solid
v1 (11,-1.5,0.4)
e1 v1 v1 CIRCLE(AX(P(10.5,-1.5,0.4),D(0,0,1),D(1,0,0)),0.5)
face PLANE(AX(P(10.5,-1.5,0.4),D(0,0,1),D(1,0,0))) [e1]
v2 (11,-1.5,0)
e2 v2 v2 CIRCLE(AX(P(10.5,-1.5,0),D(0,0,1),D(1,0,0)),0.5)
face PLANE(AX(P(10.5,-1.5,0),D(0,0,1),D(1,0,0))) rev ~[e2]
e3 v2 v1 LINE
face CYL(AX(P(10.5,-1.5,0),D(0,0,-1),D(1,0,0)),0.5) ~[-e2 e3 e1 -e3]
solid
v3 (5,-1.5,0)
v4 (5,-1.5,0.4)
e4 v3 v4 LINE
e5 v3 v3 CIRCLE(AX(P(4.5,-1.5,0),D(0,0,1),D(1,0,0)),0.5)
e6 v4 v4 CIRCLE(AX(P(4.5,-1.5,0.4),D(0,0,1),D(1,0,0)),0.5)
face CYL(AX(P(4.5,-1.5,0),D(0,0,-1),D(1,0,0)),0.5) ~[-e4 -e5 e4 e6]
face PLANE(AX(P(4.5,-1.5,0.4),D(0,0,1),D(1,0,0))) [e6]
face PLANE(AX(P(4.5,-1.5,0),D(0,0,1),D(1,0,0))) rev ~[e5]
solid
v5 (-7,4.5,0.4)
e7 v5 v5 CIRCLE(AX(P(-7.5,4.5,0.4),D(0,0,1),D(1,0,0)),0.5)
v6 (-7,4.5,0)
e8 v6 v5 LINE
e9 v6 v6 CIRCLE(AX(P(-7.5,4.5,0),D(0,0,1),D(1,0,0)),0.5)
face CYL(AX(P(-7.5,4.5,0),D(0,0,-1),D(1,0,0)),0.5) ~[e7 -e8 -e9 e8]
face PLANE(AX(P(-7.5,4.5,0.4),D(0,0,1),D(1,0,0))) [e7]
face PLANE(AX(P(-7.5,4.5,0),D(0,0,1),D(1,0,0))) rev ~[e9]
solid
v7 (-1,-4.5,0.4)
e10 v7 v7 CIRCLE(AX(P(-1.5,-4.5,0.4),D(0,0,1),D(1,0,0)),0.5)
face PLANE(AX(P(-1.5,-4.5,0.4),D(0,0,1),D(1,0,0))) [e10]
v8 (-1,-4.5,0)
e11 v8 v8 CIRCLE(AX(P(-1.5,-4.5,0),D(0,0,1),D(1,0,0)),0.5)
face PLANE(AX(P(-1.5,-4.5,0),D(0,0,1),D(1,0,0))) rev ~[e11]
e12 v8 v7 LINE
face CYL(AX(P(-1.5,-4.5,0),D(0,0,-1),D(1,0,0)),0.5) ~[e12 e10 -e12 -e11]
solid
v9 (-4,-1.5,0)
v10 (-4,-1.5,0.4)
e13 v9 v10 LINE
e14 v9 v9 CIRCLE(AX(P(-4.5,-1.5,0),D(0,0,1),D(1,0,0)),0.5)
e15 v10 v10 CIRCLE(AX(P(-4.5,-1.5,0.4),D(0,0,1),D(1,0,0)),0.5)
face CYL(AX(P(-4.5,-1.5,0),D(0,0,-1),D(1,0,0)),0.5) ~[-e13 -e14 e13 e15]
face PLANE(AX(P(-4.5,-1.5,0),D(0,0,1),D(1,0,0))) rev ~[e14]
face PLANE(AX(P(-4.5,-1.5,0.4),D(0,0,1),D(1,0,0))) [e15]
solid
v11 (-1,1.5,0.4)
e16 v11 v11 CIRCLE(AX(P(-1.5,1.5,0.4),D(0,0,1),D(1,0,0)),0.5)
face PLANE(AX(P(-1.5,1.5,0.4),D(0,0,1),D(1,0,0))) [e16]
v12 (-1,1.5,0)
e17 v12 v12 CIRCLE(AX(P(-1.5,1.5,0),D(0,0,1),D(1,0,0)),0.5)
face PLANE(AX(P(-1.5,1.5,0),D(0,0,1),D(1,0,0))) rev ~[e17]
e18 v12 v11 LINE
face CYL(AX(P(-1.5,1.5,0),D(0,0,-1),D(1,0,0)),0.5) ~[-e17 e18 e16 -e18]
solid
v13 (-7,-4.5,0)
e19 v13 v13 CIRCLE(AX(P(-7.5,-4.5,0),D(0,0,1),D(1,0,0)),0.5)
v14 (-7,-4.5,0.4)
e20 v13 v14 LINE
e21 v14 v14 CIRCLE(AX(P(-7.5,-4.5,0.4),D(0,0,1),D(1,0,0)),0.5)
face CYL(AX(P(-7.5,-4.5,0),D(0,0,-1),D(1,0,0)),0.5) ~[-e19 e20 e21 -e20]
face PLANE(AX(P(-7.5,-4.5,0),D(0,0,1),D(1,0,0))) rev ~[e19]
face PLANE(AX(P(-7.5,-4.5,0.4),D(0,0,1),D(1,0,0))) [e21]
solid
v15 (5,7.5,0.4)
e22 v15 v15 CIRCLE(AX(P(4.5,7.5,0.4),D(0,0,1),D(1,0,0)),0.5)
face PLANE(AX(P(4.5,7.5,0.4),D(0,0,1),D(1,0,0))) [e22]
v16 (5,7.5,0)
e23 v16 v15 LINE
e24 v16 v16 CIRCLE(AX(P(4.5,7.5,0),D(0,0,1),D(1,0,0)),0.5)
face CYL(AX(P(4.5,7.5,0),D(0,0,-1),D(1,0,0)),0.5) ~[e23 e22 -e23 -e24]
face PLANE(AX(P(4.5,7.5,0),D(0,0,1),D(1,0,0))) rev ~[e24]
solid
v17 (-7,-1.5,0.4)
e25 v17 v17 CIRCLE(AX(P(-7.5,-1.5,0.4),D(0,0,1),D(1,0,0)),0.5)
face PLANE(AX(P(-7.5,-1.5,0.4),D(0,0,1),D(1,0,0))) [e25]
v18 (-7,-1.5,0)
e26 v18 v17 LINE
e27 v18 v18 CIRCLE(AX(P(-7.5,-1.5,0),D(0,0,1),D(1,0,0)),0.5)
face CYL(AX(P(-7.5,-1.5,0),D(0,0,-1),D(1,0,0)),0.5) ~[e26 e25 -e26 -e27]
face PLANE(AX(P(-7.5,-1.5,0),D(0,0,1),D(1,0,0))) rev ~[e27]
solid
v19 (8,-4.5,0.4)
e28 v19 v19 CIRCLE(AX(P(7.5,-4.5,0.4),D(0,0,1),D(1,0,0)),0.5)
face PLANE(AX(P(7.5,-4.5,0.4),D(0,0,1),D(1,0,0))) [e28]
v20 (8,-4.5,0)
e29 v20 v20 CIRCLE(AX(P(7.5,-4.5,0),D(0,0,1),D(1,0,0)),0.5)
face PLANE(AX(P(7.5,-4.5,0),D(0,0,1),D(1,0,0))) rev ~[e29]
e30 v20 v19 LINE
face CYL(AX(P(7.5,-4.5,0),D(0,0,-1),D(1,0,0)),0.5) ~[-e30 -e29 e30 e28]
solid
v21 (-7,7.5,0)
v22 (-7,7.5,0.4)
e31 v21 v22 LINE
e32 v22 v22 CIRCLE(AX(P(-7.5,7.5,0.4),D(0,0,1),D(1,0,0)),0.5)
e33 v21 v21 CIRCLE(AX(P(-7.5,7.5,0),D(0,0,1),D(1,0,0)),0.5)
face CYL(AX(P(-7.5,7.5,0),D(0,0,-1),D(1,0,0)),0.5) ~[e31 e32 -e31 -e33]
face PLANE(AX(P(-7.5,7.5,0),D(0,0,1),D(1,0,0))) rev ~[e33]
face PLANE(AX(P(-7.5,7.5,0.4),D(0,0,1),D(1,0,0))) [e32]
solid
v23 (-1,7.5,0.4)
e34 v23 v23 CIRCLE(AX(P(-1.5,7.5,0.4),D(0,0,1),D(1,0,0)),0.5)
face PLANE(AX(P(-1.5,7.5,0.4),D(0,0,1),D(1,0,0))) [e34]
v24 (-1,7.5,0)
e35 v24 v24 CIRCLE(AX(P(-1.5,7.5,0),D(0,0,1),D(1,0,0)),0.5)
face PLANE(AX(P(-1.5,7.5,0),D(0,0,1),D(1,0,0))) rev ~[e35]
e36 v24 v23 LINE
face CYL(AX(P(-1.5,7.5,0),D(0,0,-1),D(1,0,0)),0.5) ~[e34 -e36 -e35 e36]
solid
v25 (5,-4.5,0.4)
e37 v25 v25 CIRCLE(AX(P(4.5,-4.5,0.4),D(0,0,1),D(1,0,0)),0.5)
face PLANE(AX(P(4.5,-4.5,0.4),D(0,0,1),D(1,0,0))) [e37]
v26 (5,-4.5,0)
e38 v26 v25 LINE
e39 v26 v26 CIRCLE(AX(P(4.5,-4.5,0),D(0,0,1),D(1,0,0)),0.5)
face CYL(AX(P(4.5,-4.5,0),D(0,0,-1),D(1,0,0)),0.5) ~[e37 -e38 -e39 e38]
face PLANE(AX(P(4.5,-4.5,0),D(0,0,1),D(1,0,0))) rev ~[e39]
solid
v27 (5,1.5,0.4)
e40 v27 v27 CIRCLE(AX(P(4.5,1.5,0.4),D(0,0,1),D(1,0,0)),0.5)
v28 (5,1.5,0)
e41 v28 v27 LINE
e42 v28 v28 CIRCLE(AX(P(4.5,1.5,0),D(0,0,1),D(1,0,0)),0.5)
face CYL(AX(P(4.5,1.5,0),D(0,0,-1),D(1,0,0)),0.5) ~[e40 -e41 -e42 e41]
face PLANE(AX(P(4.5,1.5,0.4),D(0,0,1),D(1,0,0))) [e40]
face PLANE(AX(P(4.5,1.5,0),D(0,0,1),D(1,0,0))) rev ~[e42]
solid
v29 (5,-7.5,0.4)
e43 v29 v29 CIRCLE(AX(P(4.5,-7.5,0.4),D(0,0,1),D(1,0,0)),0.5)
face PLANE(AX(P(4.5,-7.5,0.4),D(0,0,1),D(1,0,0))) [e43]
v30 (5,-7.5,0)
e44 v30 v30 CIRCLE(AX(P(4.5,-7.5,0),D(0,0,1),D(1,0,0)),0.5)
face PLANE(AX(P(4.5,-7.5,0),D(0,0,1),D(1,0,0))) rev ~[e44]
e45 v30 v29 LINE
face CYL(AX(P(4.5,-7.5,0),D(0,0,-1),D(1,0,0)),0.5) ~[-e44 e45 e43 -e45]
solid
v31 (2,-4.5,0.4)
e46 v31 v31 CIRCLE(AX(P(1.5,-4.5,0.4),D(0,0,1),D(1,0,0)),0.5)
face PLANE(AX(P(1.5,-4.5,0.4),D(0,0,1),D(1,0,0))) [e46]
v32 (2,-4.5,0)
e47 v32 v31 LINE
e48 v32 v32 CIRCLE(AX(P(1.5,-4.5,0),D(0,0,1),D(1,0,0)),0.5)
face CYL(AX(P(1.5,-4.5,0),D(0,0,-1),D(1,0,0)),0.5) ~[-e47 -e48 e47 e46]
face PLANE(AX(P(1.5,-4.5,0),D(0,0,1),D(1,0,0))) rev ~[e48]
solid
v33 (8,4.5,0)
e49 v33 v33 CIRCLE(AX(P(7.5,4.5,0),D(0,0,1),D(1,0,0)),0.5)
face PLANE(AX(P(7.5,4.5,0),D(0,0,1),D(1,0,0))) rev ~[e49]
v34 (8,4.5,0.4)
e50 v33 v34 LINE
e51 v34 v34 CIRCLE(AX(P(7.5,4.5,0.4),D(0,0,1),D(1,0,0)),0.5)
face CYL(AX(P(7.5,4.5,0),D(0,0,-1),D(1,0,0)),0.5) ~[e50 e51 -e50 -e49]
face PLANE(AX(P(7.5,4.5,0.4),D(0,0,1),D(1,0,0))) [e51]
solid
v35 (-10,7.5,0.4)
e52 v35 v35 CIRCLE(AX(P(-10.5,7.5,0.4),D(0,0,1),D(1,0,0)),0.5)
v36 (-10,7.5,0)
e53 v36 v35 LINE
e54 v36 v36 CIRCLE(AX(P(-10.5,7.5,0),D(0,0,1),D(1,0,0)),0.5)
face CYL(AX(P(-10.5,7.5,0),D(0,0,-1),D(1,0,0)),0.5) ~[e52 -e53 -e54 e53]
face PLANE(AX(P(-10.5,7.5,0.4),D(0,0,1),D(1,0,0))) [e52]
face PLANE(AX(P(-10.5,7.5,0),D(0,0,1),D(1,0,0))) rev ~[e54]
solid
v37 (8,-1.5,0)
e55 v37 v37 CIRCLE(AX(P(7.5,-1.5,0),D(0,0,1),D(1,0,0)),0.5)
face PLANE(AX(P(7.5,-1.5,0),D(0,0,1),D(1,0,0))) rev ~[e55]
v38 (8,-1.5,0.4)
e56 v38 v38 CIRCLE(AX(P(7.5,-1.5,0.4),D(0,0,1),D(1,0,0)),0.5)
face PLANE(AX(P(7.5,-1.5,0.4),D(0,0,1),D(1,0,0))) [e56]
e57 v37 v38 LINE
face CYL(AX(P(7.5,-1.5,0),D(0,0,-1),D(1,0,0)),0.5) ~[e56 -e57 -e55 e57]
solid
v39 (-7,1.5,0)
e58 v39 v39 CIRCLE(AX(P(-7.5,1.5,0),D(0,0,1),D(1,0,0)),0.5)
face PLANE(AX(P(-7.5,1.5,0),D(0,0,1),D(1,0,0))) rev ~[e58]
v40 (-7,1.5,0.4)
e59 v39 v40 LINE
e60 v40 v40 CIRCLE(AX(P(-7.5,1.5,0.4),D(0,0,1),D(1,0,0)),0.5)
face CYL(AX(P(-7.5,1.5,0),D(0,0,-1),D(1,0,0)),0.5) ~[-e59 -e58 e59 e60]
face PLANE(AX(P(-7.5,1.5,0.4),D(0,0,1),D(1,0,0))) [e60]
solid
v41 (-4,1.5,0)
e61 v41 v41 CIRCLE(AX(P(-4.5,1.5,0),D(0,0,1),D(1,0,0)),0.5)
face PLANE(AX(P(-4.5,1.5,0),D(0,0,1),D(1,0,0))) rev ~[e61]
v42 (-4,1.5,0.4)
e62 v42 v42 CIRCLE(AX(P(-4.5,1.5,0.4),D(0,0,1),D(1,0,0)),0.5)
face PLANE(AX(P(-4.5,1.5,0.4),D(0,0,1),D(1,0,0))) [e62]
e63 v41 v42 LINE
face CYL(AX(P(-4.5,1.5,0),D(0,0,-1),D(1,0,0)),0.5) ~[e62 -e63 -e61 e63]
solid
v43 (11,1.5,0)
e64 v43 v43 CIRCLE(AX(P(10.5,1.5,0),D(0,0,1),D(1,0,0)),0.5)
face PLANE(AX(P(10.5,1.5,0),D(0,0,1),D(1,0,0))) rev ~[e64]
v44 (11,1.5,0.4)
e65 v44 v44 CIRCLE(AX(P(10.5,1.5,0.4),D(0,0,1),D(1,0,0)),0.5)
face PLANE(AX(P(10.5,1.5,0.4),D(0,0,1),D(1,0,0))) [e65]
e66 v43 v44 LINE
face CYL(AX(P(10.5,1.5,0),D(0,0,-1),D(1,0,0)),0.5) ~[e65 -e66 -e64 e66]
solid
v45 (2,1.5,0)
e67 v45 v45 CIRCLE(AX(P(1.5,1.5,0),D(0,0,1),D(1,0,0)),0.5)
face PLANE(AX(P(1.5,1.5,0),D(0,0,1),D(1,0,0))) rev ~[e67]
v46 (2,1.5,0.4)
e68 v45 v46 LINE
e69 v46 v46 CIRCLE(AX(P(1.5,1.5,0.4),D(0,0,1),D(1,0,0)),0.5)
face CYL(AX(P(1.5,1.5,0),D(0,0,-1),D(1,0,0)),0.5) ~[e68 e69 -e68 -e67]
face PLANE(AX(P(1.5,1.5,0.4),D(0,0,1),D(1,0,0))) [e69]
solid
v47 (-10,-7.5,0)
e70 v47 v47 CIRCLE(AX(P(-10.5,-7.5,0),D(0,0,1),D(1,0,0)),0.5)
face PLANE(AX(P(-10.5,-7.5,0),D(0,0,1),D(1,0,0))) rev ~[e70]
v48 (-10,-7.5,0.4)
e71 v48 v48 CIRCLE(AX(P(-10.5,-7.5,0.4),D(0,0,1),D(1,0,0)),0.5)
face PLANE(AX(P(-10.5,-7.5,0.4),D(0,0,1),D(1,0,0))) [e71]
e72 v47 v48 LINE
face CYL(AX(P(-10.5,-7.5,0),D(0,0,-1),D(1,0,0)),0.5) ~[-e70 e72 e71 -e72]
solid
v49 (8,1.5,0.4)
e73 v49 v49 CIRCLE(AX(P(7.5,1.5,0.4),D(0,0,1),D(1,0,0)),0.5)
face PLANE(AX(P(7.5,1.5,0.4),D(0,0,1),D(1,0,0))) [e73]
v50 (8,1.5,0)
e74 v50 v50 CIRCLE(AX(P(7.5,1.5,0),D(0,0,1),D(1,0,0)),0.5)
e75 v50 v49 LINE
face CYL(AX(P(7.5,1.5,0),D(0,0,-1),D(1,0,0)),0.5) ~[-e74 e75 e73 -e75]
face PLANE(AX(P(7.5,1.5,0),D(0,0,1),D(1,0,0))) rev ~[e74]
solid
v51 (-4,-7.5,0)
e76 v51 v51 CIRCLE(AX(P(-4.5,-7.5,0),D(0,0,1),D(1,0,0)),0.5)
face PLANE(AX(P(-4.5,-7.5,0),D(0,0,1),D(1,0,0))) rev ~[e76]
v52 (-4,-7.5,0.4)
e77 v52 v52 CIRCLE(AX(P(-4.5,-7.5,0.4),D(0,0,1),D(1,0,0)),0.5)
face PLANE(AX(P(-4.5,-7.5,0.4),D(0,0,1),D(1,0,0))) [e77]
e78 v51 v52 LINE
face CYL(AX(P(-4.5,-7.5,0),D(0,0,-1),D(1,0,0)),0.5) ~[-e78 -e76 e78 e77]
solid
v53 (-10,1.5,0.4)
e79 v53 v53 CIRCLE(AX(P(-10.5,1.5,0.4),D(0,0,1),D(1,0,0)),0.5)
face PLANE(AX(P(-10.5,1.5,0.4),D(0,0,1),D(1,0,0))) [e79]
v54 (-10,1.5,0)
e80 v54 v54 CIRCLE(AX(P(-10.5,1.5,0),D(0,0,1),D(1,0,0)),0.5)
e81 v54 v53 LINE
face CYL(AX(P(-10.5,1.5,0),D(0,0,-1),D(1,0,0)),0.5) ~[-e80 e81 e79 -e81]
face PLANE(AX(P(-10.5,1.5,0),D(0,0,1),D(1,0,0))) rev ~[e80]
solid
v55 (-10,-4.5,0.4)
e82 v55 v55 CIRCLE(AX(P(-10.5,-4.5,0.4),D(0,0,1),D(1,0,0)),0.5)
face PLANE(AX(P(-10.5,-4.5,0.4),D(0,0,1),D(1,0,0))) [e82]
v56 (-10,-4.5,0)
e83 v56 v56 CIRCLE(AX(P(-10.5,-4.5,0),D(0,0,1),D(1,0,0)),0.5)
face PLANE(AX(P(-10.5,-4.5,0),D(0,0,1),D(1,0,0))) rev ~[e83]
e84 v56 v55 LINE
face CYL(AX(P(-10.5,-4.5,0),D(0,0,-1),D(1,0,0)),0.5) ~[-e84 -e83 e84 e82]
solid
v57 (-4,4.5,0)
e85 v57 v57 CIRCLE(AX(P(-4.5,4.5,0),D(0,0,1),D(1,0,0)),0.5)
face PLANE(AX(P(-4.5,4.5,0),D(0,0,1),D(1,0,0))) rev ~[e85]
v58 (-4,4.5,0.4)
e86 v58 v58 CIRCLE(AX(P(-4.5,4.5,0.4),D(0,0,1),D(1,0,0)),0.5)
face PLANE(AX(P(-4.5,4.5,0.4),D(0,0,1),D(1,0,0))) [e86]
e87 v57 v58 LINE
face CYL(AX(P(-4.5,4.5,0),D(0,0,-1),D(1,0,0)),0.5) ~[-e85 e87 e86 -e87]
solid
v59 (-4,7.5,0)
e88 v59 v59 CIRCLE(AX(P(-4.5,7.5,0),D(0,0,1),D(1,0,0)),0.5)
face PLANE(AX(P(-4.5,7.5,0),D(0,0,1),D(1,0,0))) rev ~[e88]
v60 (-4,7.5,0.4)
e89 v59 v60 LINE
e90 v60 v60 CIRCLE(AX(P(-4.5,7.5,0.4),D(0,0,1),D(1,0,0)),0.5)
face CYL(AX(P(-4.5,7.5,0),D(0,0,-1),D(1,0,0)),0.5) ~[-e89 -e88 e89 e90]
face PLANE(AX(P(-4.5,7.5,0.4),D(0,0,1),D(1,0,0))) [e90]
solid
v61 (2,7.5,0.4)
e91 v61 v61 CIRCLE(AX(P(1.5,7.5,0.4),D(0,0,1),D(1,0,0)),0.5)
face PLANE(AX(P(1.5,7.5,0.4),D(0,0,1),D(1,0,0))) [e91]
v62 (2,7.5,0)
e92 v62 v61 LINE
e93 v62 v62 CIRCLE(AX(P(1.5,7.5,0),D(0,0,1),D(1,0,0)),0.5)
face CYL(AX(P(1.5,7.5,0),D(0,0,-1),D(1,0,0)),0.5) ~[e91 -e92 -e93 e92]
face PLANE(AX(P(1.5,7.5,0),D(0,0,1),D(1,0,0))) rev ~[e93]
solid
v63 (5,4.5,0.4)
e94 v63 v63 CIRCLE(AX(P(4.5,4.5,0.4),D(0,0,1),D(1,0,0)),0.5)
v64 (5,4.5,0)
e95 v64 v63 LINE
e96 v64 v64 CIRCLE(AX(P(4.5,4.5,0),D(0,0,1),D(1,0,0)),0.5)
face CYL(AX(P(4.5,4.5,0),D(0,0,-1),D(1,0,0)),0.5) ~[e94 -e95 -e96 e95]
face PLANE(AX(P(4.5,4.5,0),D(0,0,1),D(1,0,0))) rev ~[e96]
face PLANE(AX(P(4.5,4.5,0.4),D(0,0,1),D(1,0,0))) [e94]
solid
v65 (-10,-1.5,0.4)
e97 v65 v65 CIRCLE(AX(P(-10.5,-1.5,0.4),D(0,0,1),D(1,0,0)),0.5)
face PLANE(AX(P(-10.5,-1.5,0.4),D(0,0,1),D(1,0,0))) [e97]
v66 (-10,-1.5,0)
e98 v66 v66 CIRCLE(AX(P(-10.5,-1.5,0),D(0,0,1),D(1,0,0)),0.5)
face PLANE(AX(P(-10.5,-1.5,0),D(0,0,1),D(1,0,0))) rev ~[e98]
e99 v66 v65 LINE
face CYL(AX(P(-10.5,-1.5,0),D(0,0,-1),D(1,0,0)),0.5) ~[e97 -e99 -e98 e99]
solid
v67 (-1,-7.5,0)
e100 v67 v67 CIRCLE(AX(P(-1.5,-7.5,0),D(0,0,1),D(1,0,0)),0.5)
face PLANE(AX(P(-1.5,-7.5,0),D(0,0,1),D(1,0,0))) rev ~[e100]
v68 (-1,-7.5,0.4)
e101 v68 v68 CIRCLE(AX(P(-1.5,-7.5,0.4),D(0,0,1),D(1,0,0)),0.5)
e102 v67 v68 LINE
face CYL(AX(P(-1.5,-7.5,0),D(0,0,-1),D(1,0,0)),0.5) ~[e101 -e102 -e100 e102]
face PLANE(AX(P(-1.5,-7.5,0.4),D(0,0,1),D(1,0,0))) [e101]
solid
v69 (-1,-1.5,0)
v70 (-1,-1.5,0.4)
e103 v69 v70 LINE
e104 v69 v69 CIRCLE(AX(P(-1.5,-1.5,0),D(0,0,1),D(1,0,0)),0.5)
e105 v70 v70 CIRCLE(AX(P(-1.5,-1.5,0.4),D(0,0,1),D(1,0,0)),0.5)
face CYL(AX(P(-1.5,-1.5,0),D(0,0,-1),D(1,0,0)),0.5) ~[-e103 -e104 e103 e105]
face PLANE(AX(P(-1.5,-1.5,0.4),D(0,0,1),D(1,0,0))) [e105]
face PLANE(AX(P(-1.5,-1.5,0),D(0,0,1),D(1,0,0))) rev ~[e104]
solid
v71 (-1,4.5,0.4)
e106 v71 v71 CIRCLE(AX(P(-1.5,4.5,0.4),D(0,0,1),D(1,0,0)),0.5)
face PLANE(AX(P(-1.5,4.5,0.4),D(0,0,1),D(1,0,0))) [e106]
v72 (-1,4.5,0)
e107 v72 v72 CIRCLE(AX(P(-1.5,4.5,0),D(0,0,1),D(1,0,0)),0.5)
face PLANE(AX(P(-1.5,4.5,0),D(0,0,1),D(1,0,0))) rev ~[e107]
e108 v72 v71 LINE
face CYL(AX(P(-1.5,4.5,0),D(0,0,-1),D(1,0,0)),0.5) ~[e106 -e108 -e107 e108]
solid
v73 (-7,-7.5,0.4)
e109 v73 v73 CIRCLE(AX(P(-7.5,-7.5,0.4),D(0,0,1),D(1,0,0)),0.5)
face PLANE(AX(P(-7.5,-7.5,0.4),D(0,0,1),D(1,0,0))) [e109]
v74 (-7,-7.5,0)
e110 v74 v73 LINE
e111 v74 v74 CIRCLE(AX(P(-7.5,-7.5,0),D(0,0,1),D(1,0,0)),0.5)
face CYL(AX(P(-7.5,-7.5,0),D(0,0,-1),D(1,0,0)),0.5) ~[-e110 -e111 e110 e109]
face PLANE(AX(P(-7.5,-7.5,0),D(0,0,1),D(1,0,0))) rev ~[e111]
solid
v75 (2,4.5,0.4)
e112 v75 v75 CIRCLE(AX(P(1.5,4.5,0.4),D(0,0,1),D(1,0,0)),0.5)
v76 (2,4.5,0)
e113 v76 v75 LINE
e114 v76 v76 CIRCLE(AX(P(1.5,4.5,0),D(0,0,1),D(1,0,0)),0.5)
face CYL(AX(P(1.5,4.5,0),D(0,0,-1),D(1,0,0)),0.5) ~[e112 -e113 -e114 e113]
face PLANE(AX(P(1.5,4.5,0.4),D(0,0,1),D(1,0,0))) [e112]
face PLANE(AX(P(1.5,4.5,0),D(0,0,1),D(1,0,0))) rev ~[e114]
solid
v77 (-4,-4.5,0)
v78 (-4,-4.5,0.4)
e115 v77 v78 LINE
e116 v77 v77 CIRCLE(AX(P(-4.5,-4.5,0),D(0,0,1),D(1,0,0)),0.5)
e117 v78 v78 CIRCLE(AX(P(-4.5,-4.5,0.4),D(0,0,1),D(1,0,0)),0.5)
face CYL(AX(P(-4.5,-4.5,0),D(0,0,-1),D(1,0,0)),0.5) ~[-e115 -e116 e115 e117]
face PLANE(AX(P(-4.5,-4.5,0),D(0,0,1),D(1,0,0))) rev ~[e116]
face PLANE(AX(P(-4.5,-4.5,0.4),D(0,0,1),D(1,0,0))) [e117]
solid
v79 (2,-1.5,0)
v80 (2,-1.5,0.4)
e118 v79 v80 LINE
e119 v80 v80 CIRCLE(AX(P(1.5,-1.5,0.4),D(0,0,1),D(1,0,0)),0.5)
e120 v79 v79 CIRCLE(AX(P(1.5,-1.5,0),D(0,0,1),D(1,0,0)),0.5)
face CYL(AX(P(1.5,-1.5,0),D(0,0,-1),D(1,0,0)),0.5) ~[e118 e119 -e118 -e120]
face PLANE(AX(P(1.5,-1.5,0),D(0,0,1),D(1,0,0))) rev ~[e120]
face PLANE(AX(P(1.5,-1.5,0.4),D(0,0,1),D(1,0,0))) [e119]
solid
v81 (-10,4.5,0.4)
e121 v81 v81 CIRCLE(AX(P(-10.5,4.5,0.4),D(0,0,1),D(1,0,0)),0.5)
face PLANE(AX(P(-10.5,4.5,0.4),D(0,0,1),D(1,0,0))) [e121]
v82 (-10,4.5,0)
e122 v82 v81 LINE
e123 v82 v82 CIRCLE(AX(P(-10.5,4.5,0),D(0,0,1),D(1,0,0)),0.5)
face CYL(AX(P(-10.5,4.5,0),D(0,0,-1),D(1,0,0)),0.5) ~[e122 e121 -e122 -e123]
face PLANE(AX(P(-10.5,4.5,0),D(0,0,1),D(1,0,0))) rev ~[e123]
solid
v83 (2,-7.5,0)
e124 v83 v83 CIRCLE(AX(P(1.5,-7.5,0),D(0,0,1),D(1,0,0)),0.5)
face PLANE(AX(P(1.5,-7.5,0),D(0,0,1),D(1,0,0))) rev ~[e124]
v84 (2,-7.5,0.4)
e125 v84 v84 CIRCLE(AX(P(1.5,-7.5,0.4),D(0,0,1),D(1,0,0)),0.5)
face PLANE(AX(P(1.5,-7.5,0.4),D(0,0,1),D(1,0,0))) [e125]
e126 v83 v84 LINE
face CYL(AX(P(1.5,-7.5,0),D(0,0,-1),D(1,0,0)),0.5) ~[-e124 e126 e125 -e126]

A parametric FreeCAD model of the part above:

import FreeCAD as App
import Part
import Sketcher

V = App.Vector

doc = App.newDocument("Part")
body = doc.addObject("PartDesign::Body", "Body")

# Sketch on XY plane
sketch1 = body.newObject("Sketcher::SketchObject", "Sketch")
sketch1.AttachmentSupport = (doc.getObject("XY_Plane"), [""])
sketch1.MapMode = "FlatFace"
sketch1.addGeometry(Part.Circle(V(-4.5, 1.5, 0), V(0, 0, 1), 0.5), False)
sketch1.addConstraint([
    Sketcher.Constraint("Diameter", 0, 1.0),
    Sketcher.Constraint("DistanceX", 0, 3, -1, 1, 4.5),
    Sketcher.Constraint("DistanceY", -1, 1, 0, 3, 1.5),
])
pad1 = body.newObject("PartDesign::Pad", "Pad")
pad1.Profile = sketch1
pad1.Length = 0.4
body2 = doc.addObject("PartDesign::Body", "Body001")

# Sketch on XY plane
sketch2 = body2.newObject("Sketcher::SketchObject", "Sketch001")
sketch2.AttachmentSupport = (doc.getObject("XY_Plane001"), [""])
sketch2.MapMode = "FlatFace"
sketch2.addGeometry(Part.Circle(V(-1.5, 1.5, 0), V(0, 0, 1), 0.5), False)
sketch2.addConstraint([
    Sketcher.Constraint("Diameter", 0, 1.0),
    Sketcher.Constraint("DistanceX", 0, 3, -1, 1, 1.5),
    Sketcher.Constraint("DistanceY", -1, 1, 0, 3, 1.5),
])
pad2 = body2.newObject("PartDesign::Pad", "Pad001")
pad2.Profile = sketch2
pad2.Length = 0.4
body3 = doc.addObject("PartDesign::Body", "Body002")

# Sketch on XY plane
sketch3 = body3.newObject("Sketcher::SketchObject", "Sketch002")
sketch3.AttachmentSupport = (doc.getObject("XY_Plane002"), [""])
sketch3.MapMode = "FlatFace"
sketch3.addGeometry(Part.Circle(V(1.5, 1.5, 0), V(0, 0, 1), 0.5), False)
sketch3.addConstraint([
    Sketcher.Constraint("Diameter", 0, 1.0),
    Sketcher.Constraint("DistanceX", -1, 1, 0, 3, 1.5),
    Sketcher.Constraint("DistanceY", -1, 1, 0, 3, 1.5),
])
pad3 = body3.newObject("PartDesign::Pad", "Pad002")
pad3.Profile = sketch3
pad3.Length = 0.4
body4 = doc.addObject("PartDesign::Body", "Body003")

# Sketch on XY plane
sketch4 = body4.newObject("Sketcher::SketchObject", "Sketch003")
sketch4.AttachmentSupport = (doc.getObject("XY_Plane003"), [""])
sketch4.MapMode = "FlatFace"
sketch4.addGeometry(Part.Circle(V(4.5, 1.5, 0), V(0, 0, 1), 0.5), False)
sketch4.addConstraint([
    Sketcher.Constraint("Diameter", 0, 1.0),
    Sketcher.Constraint("DistanceX", -1, 1, 0, 3, 4.5),
    Sketcher.Constraint("DistanceY", -1, 1, 0, 3, 1.5),
])
pad4 = body4.newObject("PartDesign::Pad", "Pad003")
pad4.Profile = sketch4
pad4.Length = 0.4
body5 = doc.addObject("PartDesign::Body", "Body004")

# Sketch on XY plane
sketch5 = body5.newObject("Sketcher::SketchObject", "Sketch004")
sketch5.AttachmentSupport = (doc.getObject("XY_Plane004"), [""])
sketch5.MapMode = "FlatFace"
sketch5.addGeometry(Part.Circle(V(7.5, 1.5, 0), V(0, 0, 1), 0.5), False)
sketch5.addConstraint([
    Sketcher.Constraint("Diameter", 0, 1.0),
    Sketcher.Constraint("DistanceX", -1, 1, 0, 3, 7.5),
    Sketcher.Constraint("DistanceY", -1, 1, 0, 3, 1.5),
])
pad5 = body5.newObject("PartDesign::Pad", "Pad004")
pad5.Profile = sketch5
pad5.Length = 0.4
body6 = doc.addObject("PartDesign::Body", "Body005")

# Sketch on XY plane
sketch6 = body6.newObject("Sketcher::SketchObject", "Sketch005")
sketch6.AttachmentSupport = (doc.getObject("XY_Plane005"), [""])
sketch6.MapMode = "FlatFace"
sketch6.addGeometry(Part.Circle(V(10.5, 1.5, 0), V(0, 0, 1), 0.5), False)
sketch6.addConstraint([
    Sketcher.Constraint("Diameter", 0, 1.0),
    Sketcher.Constraint("DistanceX", -1, 1, 0, 3, 10.5),
    Sketcher.Constraint("DistanceY", -1, 1, 0, 3, 1.5),
])
pad6 = body6.newObject("PartDesign::Pad", "Pad005")
pad6.Profile = sketch6
pad6.Length = 0.4
body7 = doc.addObject("PartDesign::Body", "Body006")

# Sketch on XY plane
sketch7 = body7.newObject("Sketcher::SketchObject", "Sketch006")
sketch7.AttachmentSupport = (doc.getObject("XY_Plane006"), [""])
sketch7.MapMode = "FlatFace"
sketch7.addGeometry(Part.Circle(V(10.5, -1.5, 0), V(0, 0, 1), 0.5), False)
sketch7.addConstraint([
    Sketcher.Constraint("Diameter", 0, 1.0),
    Sketcher.Constraint("DistanceX", -1, 1, 0, 3, 10.5),
    Sketcher.Constraint("DistanceY", 0, 3, -1, 1, 1.5),
])
pad7 = body7.newObject("PartDesign::Pad", "Pad006")
pad7.Profile = sketch7
pad7.Length = 0.4
body8 = doc.addObject("PartDesign::Body", "Body007")

# Sketch on XY plane
sketch8 = body8.newObject("Sketcher::SketchObject", "Sketch007")
sketch8.AttachmentSupport = (doc.getObject("XY_Plane007"), [""])
sketch8.MapMode = "FlatFace"
sketch8.addGeometry(Part.Circle(V(7.5, -1.5, 0), V(0, 0, 1), 0.5), False)
sketch8.addConstraint([
    Sketcher.Constraint("Diameter", 0, 1.0),
    Sketcher.Constraint("DistanceX", -1, 1, 0, 3, 7.5),
    Sketcher.Constraint("DistanceY", 0, 3, -1, 1, 1.5),
])
pad8 = body8.newObject("PartDesign::Pad", "Pad007")
pad8.Profile = sketch8
pad8.Length = 0.4
body9 = doc.addObject("PartDesign::Body", "Body008")

# Sketch on XY plane
sketch9 = body9.newObject("Sketcher::SketchObject", "Sketch008")
sketch9.AttachmentSupport = (doc.getObject("XY_Plane008"), [""])
sketch9.MapMode = "FlatFace"
sketch9.addGeometry(Part.Circle(V(-10.5, 7.5, 0), V(0, 0, 1), 0.5), False)
sketch9.addConstraint([
    Sketcher.Constraint("Diameter", 0, 1.0),
    Sketcher.Constraint("DistanceX", 0, 3, -1, 1, 10.5),
    Sketcher.Constraint("DistanceY", -1, 1, 0, 3, 7.5),
])
pad9 = body9.newObject("PartDesign::Pad", "Pad008")
pad9.Profile = sketch9
pad9.Length = 0.4
body10 = doc.addObject("PartDesign::Body", "Body009")

# Sketch on XY plane
sketch10 = body10.newObject("Sketcher::SketchObject", "Sketch009")
sketch10.AttachmentSupport = (doc.getObject("XY_Plane009"), [""])
sketch10.MapMode = "FlatFace"
sketch10.addGeometry(Part.Circle(V(-1.5, 7.5, 0), V(0, 0, 1), 0.5), False)
sketch10.addConstraint([
    Sketcher.Constraint("Diameter", 0, 1.0),
    Sketcher.Constraint("DistanceX", 0, 3, -1, 1, 1.5),
    Sketcher.Constraint("DistanceY", -1, 1, 0, 3, 7.5),
])
pad10 = body10.newObject("PartDesign::Pad", "Pad009")
pad10.Profile = sketch10
pad10.Length = 0.4
body11 = doc.addObject("PartDesign::Body", "Body010")

# Sketch on XY plane
sketch11 = body11.newObject("Sketcher::SketchObject", "Sketch010")
sketch11.AttachmentSupport = (doc.getObject("XY_Plane010"), [""])
sketch11.MapMode = "FlatFace"
sketch11.addGeometry(Part.Circle(V(1.5, 7.5, 0), V(0, 0, 1), 0.5), False)
sketch11.addConstraint([
    Sketcher.Constraint("Diameter", 0, 1.0),
    Sketcher.Constraint("DistanceX", -1, 1, 0, 3, 1.5),
    Sketcher.Constraint("DistanceY", -1, 1, 0, 3, 7.5),
])
pad11 = body11.newObject("PartDesign::Pad", "Pad010")
pad11.Profile = sketch11
pad11.Length = 0.4
body12 = doc.addObject("PartDesign::Body", "Body011")

# Sketch on XY plane
sketch12 = body12.newObject("Sketcher::SketchObject", "Sketch011")
sketch12.AttachmentSupport = (doc.getObject("XY_Plane011"), [""])
sketch12.MapMode = "FlatFace"
sketch12.addGeometry(Part.Circle(V(4.5, 7.5, 0), V(0, 0, 1), 0.5), False)
sketch12.addConstraint([
    Sketcher.Constraint("Diameter", 0, 1.0),
    Sketcher.Constraint("DistanceX", -1, 1, 0, 3, 4.5),
    Sketcher.Constraint("DistanceY", -1, 1, 0, 3, 7.5),
])
pad12 = body12.newObject("PartDesign::Pad", "Pad011")
pad12.Profile = sketch12
pad12.Length = 0.4
body13 = doc.addObject("PartDesign::Body", "Body012")

# Sketch on XY plane
sketch13 = body13.newObject("Sketcher::SketchObject", "Sketch012")
sketch13.AttachmentSupport = (doc.getObject("XY_Plane012"), [""])
sketch13.MapMode = "FlatFace"
sketch13.addGeometry(Part.Circle(V(-10.5, 1.5, 0), V(0, 0, 1), 0.5), False)
sketch13.addConstraint([
    Sketcher.Constraint("Diameter", 0, 1.0),
    Sketcher.Constraint("DistanceX", 0, 3, -1, 1, 10.5),
    Sketcher.Constraint("DistanceY", -1, 1, 0, 3, 1.5),
])
pad13 = body13.newObject("PartDesign::Pad", "Pad012")
pad13.Profile = sketch13
pad13.Length = 0.4
body14 = doc.addObject("PartDesign::Body", "Body013")

# Sketch on XY plane
sketch14 = body14.newObject("Sketcher::SketchObject", "Sketch013")
sketch14.AttachmentSupport = (doc.getObject("XY_Plane013"), [""])
sketch14.MapMode = "FlatFace"
sketch14.addGeometry(Part.Circle(V(-10.5, 4.5, 0), V(0, 0, 1), 0.5), False)
sketch14.addConstraint([
    Sketcher.Constraint("Diameter", 0, 1.0),
    Sketcher.Constraint("DistanceX", 0, 3, -1, 1, 10.5),
    Sketcher.Constraint("DistanceY", -1, 1, 0, 3, 4.5),
])
pad14 = body14.newObject("PartDesign::Pad", "Pad013")
pad14.Profile = sketch14
pad14.Length = 0.4
body15 = doc.addObject("PartDesign::Body", "Body014")

# Sketch on XY plane
sketch15 = body15.newObject("Sketcher::SketchObject", "Sketch014")
sketch15.AttachmentSupport = (doc.getObject("XY_Plane014"), [""])
sketch15.MapMode = "FlatFace"
sketch15.addGeometry(Part.Circle(V(-10.5, -1.5, 0), V(0, 0, 1), 0.5), False)
sketch15.addConstraint([
    Sketcher.Constraint("Diameter", 0, 1.0),
    Sketcher.Constraint("DistanceX", 0, 3, -1, 1, 10.5),
    Sketcher.Constraint("DistanceY", 0, 3, -1, 1, 1.5),
])
pad15 = body15.newObject("PartDesign::Pad", "Pad014")
pad15.Profile = sketch15
pad15.Length = 0.4
body16 = doc.addObject("PartDesign::Body", "Body015")

# Sketch on XY plane
sketch16 = body16.newObject("Sketcher::SketchObject", "Sketch015")
sketch16.AttachmentSupport = (doc.getObject("XY_Plane015"), [""])
sketch16.MapMode = "FlatFace"
sketch16.addGeometry(Part.Circle(V(-10.5, -4.5, 0), V(0, 0, 1), 0.5), False)
sketch16.addConstraint([
    Sketcher.Constraint("Diameter", 0, 1.0),
    Sketcher.Constraint("DistanceX", 0, 3, -1, 1, 10.5),
    Sketcher.Constraint("DistanceY", 0, 3, -1, 1, 4.5),
])
pad16 = body16.newObject("PartDesign::Pad", "Pad015")
pad16.Profile = sketch16
pad16.Length = 0.4
body17 = doc.addObject("PartDesign::Body", "Body016")

# Sketch on XY plane
sketch17 = body17.newObject("Sketcher::SketchObject", "Sketch016")
sketch17.AttachmentSupport = (doc.getObject("XY_Plane016"), [""])
sketch17.MapMode = "FlatFace"
sketch17.addGeometry(Part.Circle(V(-10.5, -7.5, 0), V(0, 0, 1), 0.5), False)
sketch17.addConstraint([
    Sketcher.Constraint("Diameter", 0, 1.0),
    Sketcher.Constraint("DistanceX", 0, 3, -1, 1, 10.5),
    Sketcher.Constraint("DistanceY", 0, 3, -1, 1, 7.5),
])
pad17 = body17.newObject("PartDesign::Pad", "Pad016")
pad17.Profile = sketch17
pad17.Length = 0.4
body18 = doc.addObject("PartDesign::Body", "Body017")

# Sketch on XY plane
sketch18 = body18.newObject("Sketcher::SketchObject", "Sketch017")
sketch18.AttachmentSupport = (doc.getObject("XY_Plane017"), [""])
sketch18.MapMode = "FlatFace"
sketch18.addGeometry(Part.Circle(V(-7.5, -7.5, 0), V(0, 0, 1), 0.5), False)
sketch18.addConstraint([
    Sketcher.Constraint("Diameter", 0, 1.0),
    Sketcher.Constraint("DistanceX", 0, 3, -1, 1, 7.5),
    Sketcher.Constraint("DistanceY", 0, 3, -1, 1, 7.5),
])
pad18 = body18.newObject("PartDesign::Pad", "Pad017")
pad18.Profile = sketch18
pad18.Length = 0.4
body19 = doc.addObject("PartDesign::Body", "Body018")

# Sketch on XY plane
sketch19 = body19.newObject("Sketcher::SketchObject", "Sketch018")
sketch19.AttachmentSupport = (doc.getObject("XY_Plane018"), [""])
sketch19.MapMode = "FlatFace"
sketch19.addGeometry(Part.Circle(V(-7.5, -4.5, 0), V(0, 0, 1), 0.5), False)
sketch19.addConstraint([
    Sketcher.Constraint("Diameter", 0, 1.0),
    Sketcher.Constraint("DistanceX", 0, 3, -1, 1, 7.5),
    Sketcher.Constraint("DistanceY", 0, 3, -1, 1, 4.5),
])
pad19 = body19.newObject("PartDesign::Pad", "Pad018")
pad19.Profile = sketch19
pad19.Length = 0.4
body20 = doc.addObject("PartDesign::Body", "Body019")

# Sketch on XY plane
sketch20 = body20.newObject("Sketcher::SketchObject", "Sketch019")
sketch20.AttachmentSupport = (doc.getObject("XY_Plane019"), [""])
sketch20.MapMode = "FlatFace"
sketch20.addGeometry(Part.Circle(V(-7.5, -1.5, 0), V(0, 0, 1), 0.5), False)
sketch20.addConstraint([
    Sketcher.Constraint("Diameter", 0, 1.0),
    Sketcher.Constraint("DistanceX", 0, 3, -1, 1, 7.5),
    Sketcher.Constraint("DistanceY", 0, 3, -1, 1, 1.5),
])
pad20 = body20.newObject("PartDesign::Pad", "Pad019")
pad20.Profile = sketch20
pad20.Length = 0.4
body21 = doc.addObject("PartDesign::Body", "Body020")

# Sketch on XY plane
sketch21 = body21.newObject("Sketcher::SketchObject", "Sketch020")
sketch21.AttachmentSupport = (doc.getObject("XY_Plane020"), [""])
sketch21.MapMode = "FlatFace"
sketch21.addGeometry(Part.Circle(V(-7.5, 1.5, 0), V(0, 0, 1), 0.5), False)
sketch21.addConstraint([
    Sketcher.Constraint("Diameter", 0, 1.0),
    Sketcher.Constraint("DistanceX", 0, 3, -1, 1, 7.5),
    Sketcher.Constraint("DistanceY", -1, 1, 0, 3, 1.5),
])
pad21 = body21.newObject("PartDesign::Pad", "Pad020")
pad21.Profile = sketch21
pad21.Length = 0.4
body22 = doc.addObject("PartDesign::Body", "Body021")

# Sketch on XY plane
sketch22 = body22.newObject("Sketcher::SketchObject", "Sketch021")
sketch22.AttachmentSupport = (doc.getObject("XY_Plane021"), [""])
sketch22.MapMode = "FlatFace"
sketch22.addGeometry(Part.Circle(V(-7.5, 4.5, 0), V(0, 0, 1), 0.5), False)
sketch22.addConstraint([
    Sketcher.Constraint("Diameter", 0, 1.0),
    Sketcher.Constraint("DistanceX", 0, 3, -1, 1, 7.5),
    Sketcher.Constraint("DistanceY", -1, 1, 0, 3, 4.5),
])
pad22 = body22.newObject("PartDesign::Pad", "Pad021")
pad22.Profile = sketch22
pad22.Length = 0.4
body23 = doc.addObject("PartDesign::Body", "Body022")

# Sketch on XY plane
sketch23 = body23.newObject("Sketcher::SketchObject", "Sketch022")
sketch23.AttachmentSupport = (doc.getObject("XY_Plane022"), [""])
sketch23.MapMode = "FlatFace"
sketch23.addGeometry(Part.Circle(V(-4.5, 4.5, 0), V(0, 0, 1), 0.5), False)
sketch23.addConstraint([
    Sketcher.Constraint("Diameter", 0, 1.0),
    Sketcher.Constraint("DistanceX", 0, 3, -1, 1, 4.5),
    Sketcher.Constraint("DistanceY", -1, 1, 0, 3, 4.5),
])
pad23 = body23.newObject("PartDesign::Pad", "Pad022")
pad23.Profile = sketch23
pad23.Length = 0.4
body24 = doc.addObject("PartDesign::Body", "Body023")

# Sketch on XY plane
sketch24 = body24.newObject("Sketcher::SketchObject", "Sketch023")
sketch24.AttachmentSupport = (doc.getObject("XY_Plane023"), [""])
sketch24.MapMode = "FlatFace"
sketch24.addGeometry(Part.Circle(V(-1.5, 4.5, 0), V(0, 0, 1), 0.5), False)
sketch24.addConstraint([
    Sketcher.Constraint("Diameter", 0, 1.0),
    Sketcher.Constraint("DistanceX", 0, 3, -1, 1, 1.5),
    Sketcher.Constraint("DistanceY", -1, 1, 0, 3, 4.5),
])
pad24 = body24.newObject("PartDesign::Pad", "Pad023")
pad24.Profile = sketch24
pad24.Length = 0.4
body25 = doc.addObject("PartDesign::Body", "Body024")

# Sketch on XY plane
sketch25 = body25.newObject("Sketcher::SketchObject", "Sketch024")
sketch25.AttachmentSupport = (doc.getObject("XY_Plane024"), [""])
sketch25.MapMode = "FlatFace"
sketch25.addGeometry(Part.Circle(V(1.5, 4.5, 0), V(0, 0, 1), 0.5), False)
sketch25.addConstraint([
    Sketcher.Constraint("Diameter", 0, 1.0),
    Sketcher.Constraint("DistanceX", -1, 1, 0, 3, 1.5),
    Sketcher.Constraint("DistanceY", -1, 1, 0, 3, 4.5),
])
pad25 = body25.newObject("PartDesign::Pad", "Pad024")
pad25.Profile = sketch25
pad25.Length = 0.4
body26 = doc.addObject("PartDesign::Body", "Body025")

# Sketch on XY plane
sketch26 = body26.newObject("Sketcher::SketchObject", "Sketch025")
sketch26.AttachmentSupport = (doc.getObject("XY_Plane025"), [""])
sketch26.MapMode = "FlatFace"
sketch26.addGeometry(Part.Circle(V(7.5, 4.5, 0), V(0, 0, 1), 0.5), False)
sketch26.addConstraint([
    Sketcher.Constraint("Diameter", 0, 1.0),
    Sketcher.Constraint("DistanceX", -1, 1, 0, 3, 7.5),
    Sketcher.Constraint("DistanceY", -1, 1, 0, 3, 4.5),
])
pad26 = body26.newObject("PartDesign::Pad", "Pad025")
pad26.Profile = sketch26
pad26.Length = 0.4
body27 = doc.addObject("PartDesign::Body", "Body026")

# Sketch on XY plane
sketch27 = body27.newObject("Sketcher::SketchObject", "Sketch026")
sketch27.AttachmentSupport = (doc.getObject("XY_Plane026"), [""])
sketch27.MapMode = "FlatFace"
sketch27.addGeometry(Part.Circle(V(1.5, -1.5, 0), V(0, 0, 1), 0.5), False)
sketch27.addConstraint([
    Sketcher.Constraint("Diameter", 0, 1.0),
    Sketcher.Constraint("DistanceX", -1, 1, 0, 3, 1.5),
    Sketcher.Constraint("DistanceY", 0, 3, -1, 1, 1.5),
])
pad27 = body27.newObject("PartDesign::Pad", "Pad026")
pad27.Profile = sketch27
pad27.Length = 0.4
body28 = doc.addObject("PartDesign::Body", "Body027")

# Sketch on XY plane
sketch28 = body28.newObject("Sketcher::SketchObject", "Sketch027")
sketch28.AttachmentSupport = (doc.getObject("XY_Plane027"), [""])
sketch28.MapMode = "FlatFace"
sketch28.addGeometry(Part.Circle(V(-1.5, -1.5, 0), V(0, 0, 1), 0.5), False)
sketch28.addConstraint([
    Sketcher.Constraint("Diameter", 0, 1.0),
    Sketcher.Constraint("DistanceX", 0, 3, -1, 1, 1.5),
    Sketcher.Constraint("DistanceY", 0, 3, -1, 1, 1.5),
])
pad28 = body28.newObject("PartDesign::Pad", "Pad027")
pad28.Profile = sketch28
pad28.Length = 0.4
body29 = doc.addObject("PartDesign::Body", "Body028")

# Sketch on XY plane
sketch29 = body29.newObject("Sketcher::SketchObject", "Sketch028")
sketch29.AttachmentSupport = (doc.getObject("XY_Plane028"), [""])
sketch29.MapMode = "FlatFace"
sketch29.addGeometry(Part.Circle(V(-4.5, -1.5, 0), V(0, 0, 1), 0.5), False)
sketch29.addConstraint([
    Sketcher.Constraint("Diameter", 0, 1.0),
    Sketcher.Constraint("DistanceX", 0, 3, -1, 1, 4.5),
    Sketcher.Constraint("DistanceY", 0, 3, -1, 1, 1.5),
])
pad29 = body29.newObject("PartDesign::Pad", "Pad028")
pad29.Profile = sketch29
pad29.Length = 0.4
body30 = doc.addObject("PartDesign::Body", "Body029")

# Sketch on XY plane
sketch30 = body30.newObject("Sketcher::SketchObject", "Sketch029")
sketch30.AttachmentSupport = (doc.getObject("XY_Plane029"), [""])
sketch30.MapMode = "FlatFace"
sketch30.addGeometry(Part.Circle(V(-4.5, -4.5, 0), V(0, 0, 1), 0.5), False)
sketch30.addConstraint([
    Sketcher.Constraint("Diameter", 0, 1.0),
    Sketcher.Constraint("DistanceX", 0, 3, -1, 1, 4.5),
    Sketcher.Constraint("DistanceY", 0, 3, -1, 1, 4.5),
])
pad30 = body30.newObject("PartDesign::Pad", "Pad029")
pad30.Profile = sketch30
pad30.Length = 0.4
body31 = doc.addObject("PartDesign::Body", "Body030")

# Sketch on XY plane
sketch31 = body31.newObject("Sketcher::SketchObject", "Sketch030")
sketch31.AttachmentSupport = (doc.getObject("XY_Plane030"), [""])
sketch31.MapMode = "FlatFace"
sketch31.addGeometry(Part.Circle(V(-1.5, -4.5, 0), V(0, 0, 1), 0.5), False)
sketch31.addConstraint([
    Sketcher.Constraint("Diameter", 0, 1.0),
    Sketcher.Constraint("DistanceX", 0, 3, -1, 1, 1.5),
    Sketcher.Constraint("DistanceY", 0, 3, -1, 1, 4.5),
])
pad31 = body31.newObject("PartDesign::Pad", "Pad030")
pad31.Profile = sketch31
pad31.Length = 0.4
body32 = doc.addObject("PartDesign::Body", "Body031")

# Sketch on XY plane
sketch32 = body32.newObject("Sketcher::SketchObject", "Sketch031")
sketch32.AttachmentSupport = (doc.getObject("XY_Plane031"), [""])
sketch32.MapMode = "FlatFace"
sketch32.addGeometry(Part.Circle(V(-4.5, -7.5, 0), V(0, 0, 1), 0.5), False)
sketch32.addConstraint([
    Sketcher.Constraint("Diameter", 0, 1.0),
    Sketcher.Constraint("DistanceX", 0, 3, -1, 1, 4.5),
    Sketcher.Constraint("DistanceY", 0, 3, -1, 1, 7.5),
])
pad32 = body32.newObject("PartDesign::Pad", "Pad031")
pad32.Profile = sketch32
pad32.Length = 0.4
body33 = doc.addObject("PartDesign::Body", "Body032")

# Sketch on XY plane
sketch33 = body33.newObject("Sketcher::SketchObject", "Sketch032")
sketch33.AttachmentSupport = (doc.getObject("XY_Plane032"), [""])
sketch33.MapMode = "FlatFace"
sketch33.addGeometry(Part.Circle(V(-1.5, -7.5, 0), V(0, 0, 1), 0.5), False)
sketch33.addConstraint([
    Sketcher.Constraint("Diameter", 0, 1.0),
    Sketcher.Constraint("DistanceX", 0, 3, -1, 1, 1.5),
    Sketcher.Constraint("DistanceY", 0, 3, -1, 1, 7.5),
])
pad33 = body33.newObject("PartDesign::Pad", "Pad032")
pad33.Profile = sketch33
pad33.Length = 0.4
body34 = doc.addObject("PartDesign::Body", "Body033")

# Sketch on XY plane
sketch34 = body34.newObject("Sketcher::SketchObject", "Sketch033")
sketch34.AttachmentSupport = (doc.getObject("XY_Plane033"), [""])
sketch34.MapMode = "FlatFace"
sketch34.addGeometry(Part.Circle(V(1.5, -7.5, 0), V(0, 0, 1), 0.5), False)
sketch34.addConstraint([
    Sketcher.Constraint("Diameter", 0, 1.0),
    Sketcher.Constraint("DistanceX", -1, 1, 0, 3, 1.5),
    Sketcher.Constraint("DistanceY", 0, 3, -1, 1, 7.5),
])
pad34 = body34.newObject("PartDesign::Pad", "Pad033")
pad34.Profile = sketch34
pad34.Length = 0.4
body35 = doc.addObject("PartDesign::Body", "Body034")

# Sketch on XY plane
sketch35 = body35.newObject("Sketcher::SketchObject", "Sketch034")
sketch35.AttachmentSupport = (doc.getObject("XY_Plane034"), [""])
sketch35.MapMode = "FlatFace"
sketch35.addGeometry(Part.Circle(V(4.5, -7.5, 0), V(0, 0, 1), 0.5), False)
sketch35.addConstraint([
    Sketcher.Constraint("Diameter", 0, 1.0),
    Sketcher.Constraint("DistanceX", -1, 1, 0, 3, 4.5),
    Sketcher.Constraint("DistanceY", 0, 3, -1, 1, 7.5),
])
pad35 = body35.newObject("PartDesign::Pad", "Pad034")
pad35.Profile = sketch35
pad35.Length = 0.4
body36 = doc.addObject("PartDesign::Body", "Body035")

# Sketch on XY plane
sketch36 = body36.newObject("Sketcher::SketchObject", "Sketch035")
sketch36.AttachmentSupport = (doc.getObject("XY_Plane035"), [""])
sketch36.MapMode = "FlatFace"
sketch36.addGeometry(Part.Circle(V(4.5, -4.5, 0), V(0, 0, 1), 0.5), False)
sketch36.addConstraint([
    Sketcher.Constraint("Diameter", 0, 1.0),
    Sketcher.Constraint("DistanceX", -1, 1, 0, 3, 4.5),
    Sketcher.Constraint("DistanceY", 0, 3, -1, 1, 4.5),
])
pad36 = body36.newObject("PartDesign::Pad", "Pad035")
pad36.Profile = sketch36
pad36.Length = 0.4
body37 = doc.addObject("PartDesign::Body", "Body036")

# Sketch on XY plane
sketch37 = body37.newObject("Sketcher::SketchObject", "Sketch036")
sketch37.AttachmentSupport = (doc.getObject("XY_Plane036"), [""])
sketch37.MapMode = "FlatFace"
sketch37.addGeometry(Part.Circle(V(7.5, -4.5, 0), V(0, 0, 1), 0.5), False)
sketch37.addConstraint([
    Sketcher.Constraint("Diameter", 0, 1.0),
    Sketcher.Constraint("DistanceX", -1, 1, 0, 3, 7.5),
    Sketcher.Constraint("DistanceY", 0, 3, -1, 1, 4.5),
])
pad37 = body37.newObject("PartDesign::Pad", "Pad036")
pad37.Profile = sketch37
pad37.Length = 0.4
body38 = doc.addObject("PartDesign::Body", "Body037")

# Sketch on XY plane
sketch38 = body38.newObject("Sketcher::SketchObject", "Sketch037")
sketch38.AttachmentSupport = (doc.getObject("XY_Plane037"), [""])
sketch38.MapMode = "FlatFace"
sketch38.addGeometry(Part.Circle(V(4.5, -1.5, 0), V(0, 0, 1), 0.5), False)
sketch38.addConstraint([
    Sketcher.Constraint("Diameter", 0, 1.0),
    Sketcher.Constraint("DistanceX", -1, 1, 0, 3, 4.5),
    Sketcher.Constraint("DistanceY", 0, 3, -1, 1, 1.5),
])
pad38 = body38.newObject("PartDesign::Pad", "Pad037")
pad38.Profile = sketch38
pad38.Length = 0.4
body39 = doc.addObject("PartDesign::Body", "Body038")

# Sketch on XY plane
sketch39 = body39.newObject("Sketcher::SketchObject", "Sketch038")
sketch39.AttachmentSupport = (doc.getObject("XY_Plane038"), [""])
sketch39.MapMode = "FlatFace"
sketch39.addGeometry(Part.Circle(V(-7.5, 7.5, 0), V(0, 0, 1), 0.5), False)
sketch39.addConstraint([
    Sketcher.Constraint("Diameter", 0, 1.0),
    Sketcher.Constraint("DistanceX", 0, 3, -1, 1, 7.5),
    Sketcher.Constraint("DistanceY", -1, 1, 0, 3, 7.5),
])
pad39 = body39.newObject("PartDesign::Pad", "Pad038")
pad39.Profile = sketch39
pad39.Length = 0.4
body40 = doc.addObject("PartDesign::Body", "Body039")

# Sketch on XY plane
sketch40 = body40.newObject("Sketcher::SketchObject", "Sketch039")
sketch40.AttachmentSupport = (doc.getObject("XY_Plane039"), [""])
sketch40.MapMode = "FlatFace"
sketch40.addGeometry(Part.Circle(V(-4.5, 7.5, 0), V(0, 0, 1), 0.5), False)
sketch40.addConstraint([
    Sketcher.Constraint("Diameter", 0, 1.0),
    Sketcher.Constraint("DistanceX", 0, 3, -1, 1, 4.5),
    Sketcher.Constraint("DistanceY", -1, 1, 0, 3, 7.5),
])
pad40 = body40.newObject("PartDesign::Pad", "Pad039")
pad40.Profile = sketch40
pad40.Length = 0.4
body41 = doc.addObject("PartDesign::Body", "Body040")

# Sketch on XY plane
sketch41 = body41.newObject("Sketcher::SketchObject", "Sketch040")
sketch41.AttachmentSupport = (doc.getObject("XY_Plane040"), [""])
sketch41.MapMode = "FlatFace"
sketch41.addGeometry(Part.Circle(V(4.5, 4.5, 0), V(0, 0, 1), 0.5), False)
sketch41.addConstraint([
    Sketcher.Constraint("Diameter", 0, 1.0),
    Sketcher.Constraint("DistanceX", -1, 1, 0, 3, 4.5),
    Sketcher.Constraint("DistanceY", -1, 1, 0, 3, 4.5),
])
pad41 = body41.newObject("PartDesign::Pad", "Pad040")
pad41.Profile = sketch41
pad41.Length = 0.4
body42 = doc.addObject("PartDesign::Body", "Body041")

# Sketch on XY plane
sketch42 = body42.newObject("Sketcher::SketchObject", "Sketch041")
sketch42.AttachmentSupport = (doc.getObject("XY_Plane041"), [""])
sketch42.MapMode = "FlatFace"
sketch42.addGeometry(Part.Circle(V(1.5, -4.5, 0), V(0, 0, 1), 0.5), False)
sketch42.addConstraint([
    Sketcher.Constraint("Diameter", 0, 1.0),
    Sketcher.Constraint("DistanceX", -1, 1, 0, 3, 1.5),
    Sketcher.Constraint("DistanceY", 0, 3, -1, 1, 4.5),
])
pad42 = body42.newObject("PartDesign::Pad", "Pad041")
pad42.Profile = sketch42
pad42.Length = 0.4

doc.recompute()
